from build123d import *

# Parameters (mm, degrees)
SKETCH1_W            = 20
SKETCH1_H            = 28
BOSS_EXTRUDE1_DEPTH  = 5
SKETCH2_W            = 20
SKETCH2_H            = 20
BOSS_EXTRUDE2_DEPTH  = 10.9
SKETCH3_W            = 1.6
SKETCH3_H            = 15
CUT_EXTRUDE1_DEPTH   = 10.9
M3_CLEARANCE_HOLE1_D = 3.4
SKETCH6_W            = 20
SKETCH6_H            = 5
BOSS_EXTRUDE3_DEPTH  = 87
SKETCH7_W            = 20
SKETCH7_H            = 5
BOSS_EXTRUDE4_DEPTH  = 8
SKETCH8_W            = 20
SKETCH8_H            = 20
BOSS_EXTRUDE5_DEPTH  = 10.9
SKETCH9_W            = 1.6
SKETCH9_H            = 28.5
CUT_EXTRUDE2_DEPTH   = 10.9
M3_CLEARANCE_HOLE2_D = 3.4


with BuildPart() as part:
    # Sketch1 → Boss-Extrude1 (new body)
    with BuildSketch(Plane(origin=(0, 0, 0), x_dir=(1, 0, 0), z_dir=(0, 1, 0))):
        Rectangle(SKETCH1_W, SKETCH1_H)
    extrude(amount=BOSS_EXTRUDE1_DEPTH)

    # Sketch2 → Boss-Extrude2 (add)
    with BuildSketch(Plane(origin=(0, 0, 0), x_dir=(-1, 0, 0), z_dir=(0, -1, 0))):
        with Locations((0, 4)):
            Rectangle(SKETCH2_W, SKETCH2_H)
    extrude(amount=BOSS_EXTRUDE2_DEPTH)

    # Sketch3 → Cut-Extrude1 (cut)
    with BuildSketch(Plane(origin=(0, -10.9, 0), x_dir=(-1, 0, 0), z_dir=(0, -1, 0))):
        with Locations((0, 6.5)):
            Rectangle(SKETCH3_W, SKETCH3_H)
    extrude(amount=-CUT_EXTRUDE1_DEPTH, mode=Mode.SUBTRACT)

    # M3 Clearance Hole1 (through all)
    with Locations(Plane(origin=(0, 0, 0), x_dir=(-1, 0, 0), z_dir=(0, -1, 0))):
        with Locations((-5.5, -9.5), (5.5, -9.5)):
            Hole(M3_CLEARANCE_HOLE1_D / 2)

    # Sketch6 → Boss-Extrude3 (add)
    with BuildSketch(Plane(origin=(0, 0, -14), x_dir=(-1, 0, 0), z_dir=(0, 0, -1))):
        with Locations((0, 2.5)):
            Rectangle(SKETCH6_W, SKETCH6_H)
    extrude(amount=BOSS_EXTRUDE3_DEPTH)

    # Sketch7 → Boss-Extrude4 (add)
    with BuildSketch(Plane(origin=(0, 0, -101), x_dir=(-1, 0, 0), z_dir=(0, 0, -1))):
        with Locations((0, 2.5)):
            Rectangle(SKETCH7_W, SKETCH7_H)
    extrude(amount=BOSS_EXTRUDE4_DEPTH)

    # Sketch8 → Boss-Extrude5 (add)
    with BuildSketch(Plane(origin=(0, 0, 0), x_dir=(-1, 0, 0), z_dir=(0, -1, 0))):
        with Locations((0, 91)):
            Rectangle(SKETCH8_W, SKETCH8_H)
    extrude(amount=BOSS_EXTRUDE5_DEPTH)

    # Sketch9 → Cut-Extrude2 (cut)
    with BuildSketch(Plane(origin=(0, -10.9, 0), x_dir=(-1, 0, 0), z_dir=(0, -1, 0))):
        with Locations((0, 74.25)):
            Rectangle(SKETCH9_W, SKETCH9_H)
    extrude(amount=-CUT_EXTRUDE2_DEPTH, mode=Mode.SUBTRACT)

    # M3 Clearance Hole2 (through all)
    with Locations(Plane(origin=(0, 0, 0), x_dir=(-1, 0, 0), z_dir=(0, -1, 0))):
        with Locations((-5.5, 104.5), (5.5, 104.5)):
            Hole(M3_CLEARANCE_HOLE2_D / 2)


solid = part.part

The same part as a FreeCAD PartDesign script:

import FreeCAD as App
import Part
import Sketcher

doc = App.newDocument("Part")
body = doc.addObject("PartDesign::Body", "Body")

# Sketch on XZ plane
sketch1 = body.newObject("Sketcher::SketchObject", "Sketch")
sketch1.AttachmentSupport = (doc.getObject("XZ_Plane"), [""])
sketch1.MapMode = "FlatFace"
sketch1.addGeometry([
    Part.LineSegment(App.Vector(-10, -14, 0), App.Vector(-10, 14, 0)),
    Part.LineSegment(App.Vector(-10, 14, 0), App.Vector(10, 14, 0)),
    Part.LineSegment(App.Vector(10, 14, 0), App.Vector(10, -14, 0)),
    Part.LineSegment(App.Vector(10, -14, 0), App.Vector(-10, -14, 0)),
], False)
sketch1.addConstraint([
    Sketcher.Constraint("Coincident", 0, 2, 1, 1),
    Sketcher.Constraint("Coincident", 1, 2, 2, 1),
    Sketcher.Constraint("Coincident", 2, 2, 3, 1),
    Sketcher.Constraint("Coincident", 3, 2, 0, 1),
    Sketcher.Constraint("Vertical", 0),
    Sketcher.Constraint("Horizontal", 1),
    Sketcher.Constraint("Vertical", 2),
    Sketcher.Constraint("Horizontal", 3),
    Sketcher.Constraint("Symmetric", 0, 2, 2, 2, -1, 1),
    Sketcher.Constraint("DistanceX", 1, 1, 1, 2, 20.0),
    Sketcher.Constraint("DistanceY", 0, 1, 0, 2, 28.0),
])
pad1 = body.newObject("PartDesign::Pad", "Pad")
pad1.Profile = sketch1
pad1.Length = 5
pad1.Reversed = True

# Sketch on XZ plane
sketch2 = body.newObject("Sketcher::SketchObject", "Sketch001")
sketch2.AttachmentSupport = (doc.getObject("XZ_Plane"), [""])
sketch2.MapMode = "FlatFace"
sketch2.addGeometry([
    Part.LineSegment(App.Vector(10, -14, 0), App.Vector(10, 6, 0)),
    Part.LineSegment(App.Vector(10, 6, 0), App.Vector(-10, 6, 0)),
    Part.LineSegment(App.Vector(-10, 6, 0), App.Vector(-10, -14, 0)),
    Part.LineSegment(App.Vector(-10, -14, 0), App.Vector(10, -14, 0)),
], False)
sketch2.addConstraint([
    Sketcher.Constraint("Coincident", 0, 2, 1, 1),
    Sketcher.Constraint("Coincident", 1, 2, 2, 1),
    Sketcher.Constraint("Coincident", 2, 2, 3, 1),
    Sketcher.Constraint("Coincident", 3, 2, 0, 1),
    Sketcher.Constraint("Vertical", 0),
    Sketcher.Constraint("Horizontal", 1),
    Sketcher.Constraint("Vertical", 2),
    Sketcher.Constraint("Horizontal", 3),
    Sketcher.Constraint("Equal", 3, 0),
    Sketcher.Constraint("DistanceX", 1, 2, 1, 1, 20.0),
    Sketcher.Constraint("DistanceX", -1, 1, 0, 2, 10.0),
    Sketcher.Constraint("DistanceY", -1, 1, 0, 2, 6.0),
])
pad2 = body.newObject("PartDesign::Pad", "Pad001")
pad2.Profile = sketch2
pad2.Length = 10.9

# Sketch on XZ plane
sketch3 = body.newObject("Sketcher::SketchObject", "Sketch002")
sketch3.AttachmentSupport = (doc.getObject("XZ_Plane"), [""])
sketch3.MapMode = "FlatFace"
sketch3.AttachmentOffset = App.Placement(App.Vector(0, 0, 10.9), App.Rotation())
sketch3.addGeometry([
    Part.LineSegment(App.Vector(0.8, -14, 0), App.Vector(0.8, 1, 0)),
    Part.LineSegment(App.Vector(0.8, 1, 0), App.Vector(-0.8, 1, 0)),
    Part.LineSegment(App.Vector(-0.8, 1, 0), App.Vector(-0.8, -14, 0)),
    Part.LineSegment(App.Vector(-0.8, -14, 0), App.Vector(0.8, -14, 0)),
], False)
sketch3.addConstraint([
    Sketcher.Constraint("Coincident", 0, 2, 1, 1),
    Sketcher.Constraint("Coincident", 1, 2, 2, 1),
    Sketcher.Constraint("Coincident", 2, 2, 3, 1),
    Sketcher.Constraint("Coincident", 3, 2, 0, 1),
    Sketcher.Constraint("Vertical", 0),
    Sketcher.Constraint("Horizontal", 1),
    Sketcher.Constraint("Vertical", 2),
    Sketcher.Constraint("Horizontal", 3),
    Sketcher.Constraint("DistanceY", 0, 1, 0, 2, 15.0),
    Sketcher.Constraint("DistanceX", 1, 2, 1, 1, 1.6),
    Sketcher.Constraint("DistanceY", -1, 1, 0, 2, 1.0),
    Sketcher.Constraint("DistanceX", -1, 1, 0, 2, 0.8),
])
pocket1 = body.newObject("PartDesign::Pocket", "Pocket")
pocket1.Profile = sketch3
pocket1.Length = 10.9

# Sketch on XZ plane
sketch4 = body.newObject("Sketcher::SketchObject", "Sketch003")
sketch4.AttachmentSupport = (doc.getObject("XZ_Plane"), [""])
sketch4.MapMode = "FlatFace"
sketch4.addGeometry([
    Part.Circle(App.Vector(5.5, 9.5, 0), App.Vector(0, 0, 1), 1.7),
    Part.Circle(App.Vector(-5.5, 9.5, 0), App.Vector(0, 0, 1), 1.7),
], False)
sketch4.addConstraint([
    Sketcher.Constraint("Equal", 0, 1),
    Sketcher.Constraint("Symmetric", 0, 3, 1, 3, -2),
    Sketcher.Constraint("Diameter", 0, 3.4),
    Sketcher.Constraint("DistanceX", 1, 3, 0, 3, 11.0),
    Sketcher.Constraint("DistanceY", -1, 1, 0, 3, 9.5),
])
doc.recompute()
hole = body.newObject("PartDesign::Hole", "Hole")
hole.Profile = sketch4
hole.ThreadType = "None"
hole.Diameter = 3.4
hole.DepthType = "ThroughAll"

# Sketch on XY plane
sketch5 = body.newObject("Sketcher::SketchObject", "Sketch004")
sketch5.AttachmentSupport = (doc.getObject("XY_Plane"), [""])
sketch5.MapMode = "FlatFace"
sketch5.AttachmentOffset = App.Placement(App.Vector(0, 0, -14), App.Rotation())
sketch5.addGeometry([
    Part.LineSegment(App.Vector(10, 5, 0), App.Vector(10, 0, 0)),
    Part.LineSegment(App.Vector(10, 0, 0), App.Vector(-10, 0, 0)),
    Part.LineSegment(App.Vector(-10, 0, 0), App.Vector(-10, 5, 0)),
    Part.LineSegment(App.Vector(-10, 5, 0), App.Vector(10, 5, 0)),
], False)
sketch5.addConstraint([
    Sketcher.Constraint("Coincident", 0, 2, 1, 1),
    Sketcher.Constraint("Coincident", 1, 2, 2, 1),
    Sketcher.Constraint("Coincident", 2, 2, 3, 1),
    Sketcher.Constraint("Coincident", 3, 2, 0, 1),
    Sketcher.Constraint("Vertical", 0),
    Sketcher.Constraint("Horizontal", 1),
    Sketcher.Constraint("Vertical", 2),
    Sketcher.Constraint("Horizontal", 3),
    Sketcher.Constraint("Symmetric", 0, 2, 1, 2, -1, 1),
    Sketcher.Constraint("DistanceX", 1, 2, 1, 1, 20.0),
    Sketcher.Constraint("DistanceY", 0, 2, 0, 1, 5.0),
])
pad3 = body.newObject("PartDesign::Pad", "Pad002")
pad3.Profile = sketch5
pad3.Length = 87
pad3.Reversed = True

# Sketch on XY plane
sketch6 = body.newObject("Sketcher::SketchObject", "Sketch005")
sketch6.AttachmentSupport = (doc.getObject("XY_Plane"), [""])
sketch6.MapMode = "FlatFace"
sketch6.AttachmentOffset = App.Placement(App.Vector(0, 0, -101), App.Rotation())
sketch6.addGeometry([
    Part.LineSegment(App.Vector(10, 5, 0), App.Vector(10, 0, 0)),
    Part.LineSegment(App.Vector(10, 0, 0), App.Vector(-10, 0, 0)),
    Part.LineSegment(App.Vector(-10, 0, 0), App.Vector(-10, 5, 0)),
    Part.LineSegment(App.Vector(-10, 5, 0), App.Vector(10, 5, 0)),
], False)
sketch6.addConstraint([
    Sketcher.Constraint("Coincident", 0, 2, 1, 1),
    Sketcher.Constraint("Coincident", 1, 2, 2, 1),
    Sketcher.Constraint("Coincident", 2, 2, 3, 1),
    Sketcher.Constraint("Coincident", 3, 2, 0, 1),
    Sketcher.Constraint("Vertical", 0),
    Sketcher.Constraint("Horizontal", 1),
    Sketcher.Constraint("Vertical", 2),
    Sketcher.Constraint("Horizontal", 3),
    Sketcher.Constraint("Symmetric", 0, 2, 1, 2, -1, 1),
    Sketcher.Constraint("DistanceX", 1, 2, 1, 1, 20.0),
    Sketcher.Constraint("DistanceY", 0, 2, 0, 1, 5.0),
])
pad4 = body.newObject("PartDesign::Pad", "Pad003")
pad4.Profile = sketch6
pad4.Length = 8
pad4.Reversed = True

# Sketch on XZ plane
sketch7 = body.newObject("Sketcher::SketchObject", "Sketch006")
sketch7.AttachmentSupport = (doc.getObject("XZ_Plane"), [""])
sketch7.MapMode = "FlatFace"
sketch7.addGeometry([
    Part.LineSegment(App.Vector(10, -101, 0), App.Vector(10, -81, 0)),
    Part.LineSegment(App.Vector(10, -81, 0), App.Vector(-10, -81, 0)),
    Part.LineSegment(App.Vector(-10, -81, 0), App.Vector(-10, -101, 0)),
    Part.LineSegment(App.Vector(-10, -101, 0), App.Vector(10, -101, 0)),
], False)
sketch7.addConstraint([
    Sketcher.Constraint("Coincident", 0, 2, 1, 1),
    Sketcher.Constraint("Coincident", 1, 2, 2, 1),
    Sketcher.Constraint("Coincident", 2, 2, 3, 1),
    Sketcher.Constraint("Coincident", 3, 2, 0, 1),
    Sketcher.Constraint("Vertical", 0),
    Sketcher.Constraint("Horizontal", 1),
    Sketcher.Constraint("Vertical", 2),
    Sketcher.Constraint("Horizontal", 3),
    Sketcher.Constraint("Equal", 3, 0),
    Sketcher.Constraint("DistanceX", 1, 2, 1, 1, 20.0),
    Sketcher.Constraint("DistanceX", -1, 1, 0, 2, 10.0),
    Sketcher.Constraint("DistanceY", 0, 2, -1, 1, 81.0),
])
pad5 = body.newObject("PartDesign::Pad", "Pad004")
pad5.Profile = sketch7
pad5.Length = 10.9

# Sketch on XZ plane
sketch8 = body.newObject("Sketcher::SketchObject", "Sketch007")
sketch8.AttachmentSupport = (doc.getObject("XZ_Plane"), [""])
sketch8.MapMode = "FlatFace"
sketch8.AttachmentOffset = App.Placement(App.Vector(0, 0, 10.9), App.Rotation())
sketch8.addGeometry([
    Part.LineSegment(App.Vector(0.8, -88.5, 0), App.Vector(0.8, -60, 0)),
    Part.LineSegment(App.Vector(0.8, -60, 0), App.Vector(-0.8, -60, 0)),
    Part.LineSegment(App.Vector(-0.8, -60, 0), App.Vector(-0.8, -88.5, 0)),
    Part.LineSegment(App.Vector(-0.8, -88.5, 0), App.Vector(0.8, -88.5, 0)),
], False)
sketch8.addConstraint([
    Sketcher.Constraint("Coincident", 0, 2, 1, 1),
    Sketcher.Constraint("Coincident", 1, 2, 2, 1),
    Sketcher.Constraint("Coincident", 2, 2, 3, 1),
    Sketcher.Constraint("Coincident", 3, 2, 0, 1),
    Sketcher.Constraint("Vertical", 0),
    Sketcher.Constraint("Horizontal", 1),
    Sketcher.Constraint("Vertical", 2),
    Sketcher.Constraint("Horizontal", 3),
    Sketcher.Constraint("DistanceX", 1, 2, 1, 1, 1.6),
    Sketcher.Constraint("DistanceY", 0, 1, 0, 2, 28.5),
    Sketcher.Constraint("DistanceY", 0, 2, -1, 1, 60.0),
    Sketcher.Constraint("DistanceX", -1, 1, 0, 2, 0.8),
])
pocket2 = body.newObject("PartDesign::Pocket", "Pocket001")
pocket2.Profile = sketch8
pocket2.Length = 10.9

# Sketch on XZ plane
sketch9 = body.newObject("Sketcher::SketchObject", "Sketch008")
sketch9.AttachmentSupport = (doc.getObject("XZ_Plane"), [""])
sketch9.MapMode = "FlatFace"
sketch9.addGeometry([
    Part.Circle(App.Vector(5.5, -104.5, 0), App.Vector(0, 0, 1), 1.7),
    Part.Circle(App.Vector(-5.5, -104.5, 0), App.Vector(0, 0, 1), 1.7),
], False)
sketch9.addConstraint([
    Sketcher.Constraint("Equal", 0, 1),
    Sketcher.Constraint("Symmetric", 0, 3, 1, 3, -2),
    Sketcher.Constraint("Diameter", 0, 3.4),
    Sketcher.Constraint("DistanceX", 1, 3, 0, 3, 11.0),
    Sketcher.Constraint("DistanceY", 0, 3, -1, 1, 104.5),
])
doc.recompute()
hole2 = body.newObject("PartDesign::Hole", "Hole001")
hole2.Profile = sketch9
hole2.ThreadType = "None"
hole2.Diameter = 3.4
hole2.DepthType = "ThroughAll"

doc.recompute()
